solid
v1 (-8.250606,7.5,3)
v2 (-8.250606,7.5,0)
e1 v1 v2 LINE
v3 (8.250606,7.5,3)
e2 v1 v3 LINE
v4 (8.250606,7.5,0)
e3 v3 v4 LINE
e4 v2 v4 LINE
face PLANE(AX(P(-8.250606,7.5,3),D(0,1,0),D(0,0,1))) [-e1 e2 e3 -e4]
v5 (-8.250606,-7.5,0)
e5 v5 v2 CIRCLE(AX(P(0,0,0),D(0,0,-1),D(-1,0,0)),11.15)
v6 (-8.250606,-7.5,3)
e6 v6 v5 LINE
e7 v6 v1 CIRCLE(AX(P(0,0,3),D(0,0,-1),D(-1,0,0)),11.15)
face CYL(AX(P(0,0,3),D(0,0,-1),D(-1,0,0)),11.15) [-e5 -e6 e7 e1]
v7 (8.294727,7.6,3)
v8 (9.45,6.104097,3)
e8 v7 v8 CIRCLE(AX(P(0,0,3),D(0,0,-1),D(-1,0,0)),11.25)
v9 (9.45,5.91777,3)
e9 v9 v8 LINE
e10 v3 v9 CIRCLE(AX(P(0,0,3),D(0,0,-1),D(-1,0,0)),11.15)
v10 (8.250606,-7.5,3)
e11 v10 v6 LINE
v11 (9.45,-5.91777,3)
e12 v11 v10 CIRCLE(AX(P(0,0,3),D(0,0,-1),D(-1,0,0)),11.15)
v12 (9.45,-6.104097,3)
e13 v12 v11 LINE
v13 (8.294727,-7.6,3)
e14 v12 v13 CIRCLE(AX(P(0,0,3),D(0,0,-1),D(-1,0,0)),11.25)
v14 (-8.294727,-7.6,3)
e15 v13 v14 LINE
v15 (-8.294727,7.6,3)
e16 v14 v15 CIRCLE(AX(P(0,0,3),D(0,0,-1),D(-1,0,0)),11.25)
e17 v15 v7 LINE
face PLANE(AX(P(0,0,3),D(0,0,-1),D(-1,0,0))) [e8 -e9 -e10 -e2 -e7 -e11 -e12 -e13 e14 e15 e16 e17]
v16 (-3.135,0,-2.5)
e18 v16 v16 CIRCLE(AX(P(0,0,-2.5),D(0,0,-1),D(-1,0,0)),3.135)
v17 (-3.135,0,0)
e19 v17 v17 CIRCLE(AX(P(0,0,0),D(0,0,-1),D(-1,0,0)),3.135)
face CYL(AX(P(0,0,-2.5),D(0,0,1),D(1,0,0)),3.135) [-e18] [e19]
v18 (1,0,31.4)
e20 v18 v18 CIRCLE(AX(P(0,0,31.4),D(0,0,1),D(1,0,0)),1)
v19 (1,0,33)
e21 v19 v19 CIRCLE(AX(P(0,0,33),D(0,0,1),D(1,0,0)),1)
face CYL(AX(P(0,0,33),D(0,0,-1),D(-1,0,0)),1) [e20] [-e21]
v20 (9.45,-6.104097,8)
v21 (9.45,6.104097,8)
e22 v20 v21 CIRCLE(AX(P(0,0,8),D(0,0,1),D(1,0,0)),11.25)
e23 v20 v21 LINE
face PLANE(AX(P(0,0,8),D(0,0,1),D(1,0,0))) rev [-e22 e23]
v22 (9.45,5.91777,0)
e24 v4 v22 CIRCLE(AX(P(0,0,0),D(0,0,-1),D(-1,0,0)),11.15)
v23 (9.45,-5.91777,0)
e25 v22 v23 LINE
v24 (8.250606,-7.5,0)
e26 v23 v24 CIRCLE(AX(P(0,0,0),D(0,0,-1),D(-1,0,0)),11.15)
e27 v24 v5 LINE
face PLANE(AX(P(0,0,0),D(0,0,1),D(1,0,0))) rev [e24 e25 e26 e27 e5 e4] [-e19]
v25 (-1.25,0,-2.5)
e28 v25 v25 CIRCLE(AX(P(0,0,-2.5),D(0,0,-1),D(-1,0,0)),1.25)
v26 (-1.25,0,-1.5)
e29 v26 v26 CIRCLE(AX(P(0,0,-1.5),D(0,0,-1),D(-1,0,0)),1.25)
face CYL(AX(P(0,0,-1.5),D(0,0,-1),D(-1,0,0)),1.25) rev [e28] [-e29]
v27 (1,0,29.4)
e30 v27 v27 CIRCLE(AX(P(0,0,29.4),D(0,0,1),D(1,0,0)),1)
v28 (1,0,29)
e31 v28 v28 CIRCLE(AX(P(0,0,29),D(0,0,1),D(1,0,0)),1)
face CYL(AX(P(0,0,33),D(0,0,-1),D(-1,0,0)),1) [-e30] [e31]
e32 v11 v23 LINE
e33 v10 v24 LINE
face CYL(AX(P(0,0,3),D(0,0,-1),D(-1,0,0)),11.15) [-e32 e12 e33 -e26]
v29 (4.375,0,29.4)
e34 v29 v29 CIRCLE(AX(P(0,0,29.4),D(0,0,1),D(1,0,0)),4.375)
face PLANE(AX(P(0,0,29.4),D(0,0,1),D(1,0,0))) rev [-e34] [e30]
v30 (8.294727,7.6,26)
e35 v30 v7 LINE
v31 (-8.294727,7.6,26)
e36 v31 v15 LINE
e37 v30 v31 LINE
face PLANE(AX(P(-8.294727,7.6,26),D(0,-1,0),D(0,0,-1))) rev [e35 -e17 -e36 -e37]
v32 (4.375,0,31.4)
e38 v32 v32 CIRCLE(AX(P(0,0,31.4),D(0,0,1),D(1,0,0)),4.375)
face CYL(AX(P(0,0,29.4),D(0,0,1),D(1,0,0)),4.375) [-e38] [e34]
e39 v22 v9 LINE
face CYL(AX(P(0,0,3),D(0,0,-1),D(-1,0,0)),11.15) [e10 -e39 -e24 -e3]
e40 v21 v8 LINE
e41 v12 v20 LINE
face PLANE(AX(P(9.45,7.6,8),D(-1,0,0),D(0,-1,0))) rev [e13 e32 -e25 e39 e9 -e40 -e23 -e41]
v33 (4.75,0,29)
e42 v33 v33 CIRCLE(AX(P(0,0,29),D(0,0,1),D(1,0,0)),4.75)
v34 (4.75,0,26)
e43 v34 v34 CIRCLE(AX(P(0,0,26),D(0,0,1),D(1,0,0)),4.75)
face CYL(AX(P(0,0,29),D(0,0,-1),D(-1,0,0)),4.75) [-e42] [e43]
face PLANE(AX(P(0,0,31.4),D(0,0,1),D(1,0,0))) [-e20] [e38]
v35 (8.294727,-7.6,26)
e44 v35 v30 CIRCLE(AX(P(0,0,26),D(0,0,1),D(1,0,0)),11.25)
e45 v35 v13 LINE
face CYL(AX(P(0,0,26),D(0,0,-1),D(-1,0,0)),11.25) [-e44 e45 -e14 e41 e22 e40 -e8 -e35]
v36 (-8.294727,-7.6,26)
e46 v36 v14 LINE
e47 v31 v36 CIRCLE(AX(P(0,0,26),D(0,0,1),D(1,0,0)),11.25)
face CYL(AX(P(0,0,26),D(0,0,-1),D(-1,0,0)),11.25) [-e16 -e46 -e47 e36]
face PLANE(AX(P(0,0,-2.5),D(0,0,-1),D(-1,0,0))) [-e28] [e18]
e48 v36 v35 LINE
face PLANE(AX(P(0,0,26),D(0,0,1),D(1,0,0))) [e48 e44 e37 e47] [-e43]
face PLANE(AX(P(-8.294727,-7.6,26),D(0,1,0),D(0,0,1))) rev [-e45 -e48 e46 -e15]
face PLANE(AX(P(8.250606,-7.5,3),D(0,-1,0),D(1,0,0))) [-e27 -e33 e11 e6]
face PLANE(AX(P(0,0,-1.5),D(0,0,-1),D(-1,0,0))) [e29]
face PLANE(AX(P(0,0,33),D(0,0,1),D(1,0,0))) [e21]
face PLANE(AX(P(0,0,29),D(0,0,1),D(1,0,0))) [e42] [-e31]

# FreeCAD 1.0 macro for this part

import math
import FreeCAD as App
import Part
import Sketcher
from FreeCAD import Vector
Q = App.Units.Quantity

doc = App.newDocument("Part")
params = doc.addObject("Spreadsheet::Sheet", "Params")
for row, (alias, value) in enumerate([
    ("sketch1_radius", "11.25 mm"),
    ("pad1_length", "26 mm"),
    ("sketch2_diameter", "9.5 mm"),
    ("pad2_length", "3 mm"),
    ("sketch3_diameter", "2 mm"),
    ("pad3_length", "4 mm"),
    ("sketch4_diameter", "8.75 mm"),
    ("pad4_length", "2 mm"),
    ("sketch5_radius", "11.25 mm"),
    ("sketch5_radius2", "11.15 mm"),
    ("pocket1_length", "3 mm"),
    ("sketch6_diameter", "6.27 mm"),
    ("pad5_length", "2.5 mm"),
    ("sketch7_diameter", "2.5 mm"),
    ("pocket2_length", "1 mm"),
    ("sketch8_width", "1.8 mm"),
    ("sketch8_height", "15.2 mm"),
    ("pocket3_length", "8 mm"),
], start=1):
    params.set(f"A{row}", alias)
    params.set(f"B{row}", "=" + value)
    params.setAlias(f"B{row}", alias)

body = doc.addObject("PartDesign::Body", "Body")

sketch1 = doc.addObject("Sketcher::SketchObject", "Sketch")
body.addObject(sketch1)
sketch1.AttachmentSupport = (doc.XY_Plane, [""])
sketch1.MapMode = "FlatFace"
sketch1.addGeometry(Part.LineSegment(Vector(8.294727, 7.6, 0), Vector(-8.294727, 7.6, 0)), False)
sketch1.addGeometry(Part.ArcOfCircle(Part.Circle(Vector(0, 0, 0), Vector(0, 0, 1), 11.25), math.radians(137.502693), math.radians(222.497307)), False)
sketch1.addGeometry(Part.LineSegment(Vector(-8.294727, -7.6, 0), Vector(8.294727, -7.6, 0)), False)
sketch1.addGeometry(Part.ArcOfCircle(Part.Circle(Vector(0, 0, 0), Vector(0, 0, 1), 11.25), math.radians(-42.497307), math.radians(42.497307)), False)
sketch1.addConstraint(Sketcher.Constraint("Coincident", 0, 2, 1, 1))
sketch1.addConstraint(Sketcher.Constraint("Coincident", 1, 2, 2, 1))
sketch1.addConstraint(Sketcher.Constraint("Coincident", 2, 2, 3, 1))
sketch1.addConstraint(Sketcher.Constraint("Coincident", 3, 2, 0, 1))
sketch1.addConstraint(Sketcher.Constraint("Horizontal", 0))
sketch1.addConstraint(Sketcher.Constraint("Horizontal", 2))
sketch1.addConstraint(Sketcher.Constraint("Coincident", 1, 3, -1, 1))
sketch1.addConstraint(Sketcher.Constraint("Coincident", 3, 3, -1, 1))
sketch1.addConstraint(Sketcher.Constraint("Equal", 1, 3))
sketch1.addConstraint(Sketcher.Constraint("Vertical", 0, 2, 1, 2))
sketch1.addConstraint(Sketcher.Constraint("Radius", 1, Q("11.25 mm")))
sketch1.addConstraint(Sketcher.Constraint("DistanceY", -1, 1, 0, 2, Q("7.6 mm")))
sketch1.setExpression("Constraints[10]", "Params.sketch1_radius")
pad1 = doc.addObject("PartDesign::Pad", "Pad")
body.addObject(pad1)
pad1.Profile = sketch1
pad1.setExpression("Length", "Params.pad1_length")

sketch2 = doc.addObject("Sketcher::SketchObject", "Sketch001")
body.addObject(sketch2)
sketch2.AttachmentSupport = (doc.XY_Plane, [""])
sketch2.MapMode = "FlatFace"
sketch2.AttachmentOffset = App.Placement(Vector(0, 0, 26), App.Rotation())
sketch2.addGeometry(Part.Circle(Vector(0, 0, 0), Vector(0, 0, 1), 4.75), False)
sketch2.addConstraint(Sketcher.Constraint("Coincident", 0, 3, -1, 1))
sketch2.addConstraint(Sketcher.Constraint("Diameter", 0, Q("9.5 mm")))
sketch2.setExpression("Constraints[1]", "Params.sketch2_diameter")
pad2 = doc.addObject("PartDesign::Pad", "Pad001")
body.addObject(pad2)
pad2.Profile = sketch2
pad2.setExpression("Length", "Params.pad2_length")

sketch3 = doc.addObject("Sketcher::SketchObject", "Sketch002")
body.addObject(sketch3)
sketch3.AttachmentSupport = (doc.XY_Plane, [""])
sketch3.MapMode = "FlatFace"
sketch3.AttachmentOffset = App.Placement(Vector(0, 0, 29), App.Rotation())
sketch3.addGeometry(Part.Circle(Vector(0, 0, 0), Vector(0, 0, 1), 1), False)
sketch3.addConstraint(Sketcher.Constraint("Coincident", 0, 3, -1, 1))
sketch3.addConstraint(Sketcher.Constraint("Diameter", 0, Q("2 mm")))
sketch3.setExpression("Constraints[1]", "Params.sketch3_diameter")
pad3 = doc.addObject("PartDesign::Pad", "Pad002")
body.addObject(pad3)
pad3.Profile = sketch3
pad3.setExpression("Length", "Params.pad3_length")

sketch4 = doc.addObject("Sketcher::SketchObject", "Sketch003")
body.addObject(sketch4)
sketch4.AttachmentSupport = (doc.XY_Plane, [""])
sketch4.MapMode = "FlatFace"
sketch4.AttachmentOffset = App.Placement(Vector(0, 0, 31.4), App.Rotation())
sketch4.addGeometry(Part.Circle(Vector(0, 0, 0), Vector(0, 0, 1), 4.375), False)
sketch4.addConstraint(Sketcher.Constraint("Coincident", 0, 3, -1, 1))
sketch4.addConstraint(Sketcher.Constraint("Diameter", 0, Q("8.75 mm")))
sketch4.setExpression("Constraints[1]", "Params.sketch4_diameter")
pad4 = doc.addObject("PartDesign::Pad", "Pad003")
body.addObject(pad4)
pad4.Profile = sketch4
pad4.setExpression("Length", "Params.pad4_length")
pad4.Reversed = True

sketch5 = doc.addObject("Sketcher::SketchObject", "Sketch004")
body.addObject(sketch5)
sketch5.AttachmentSupport = (doc.XY_Plane, [""])
sketch5.MapMode = "FlatFace"
sketch5.addGeometry(Part.LineSegment(Vector(8.294727, -7.6, 0), Vector(-8.294727, -7.6, 0)), False)
sketch5.addGeometry(Part.ArcOfCircle(Part.Circle(Vector(0, 0, 0), Vector(0, 0, 1), 11.25), math.radians(137.502693), math.radians(222.497307)), False)
sketch5.addGeometry(Part.LineSegment(Vector(-8.294727, 7.6, 0), Vector(8.294727, 7.6, 0)), False)
sketch5.addGeometry(Part.ArcOfCircle(Part.Circle(Vector(0, 0, 0), Vector(0, 0, 1), 11.25), math.radians(-42.497307), math.radians(42.497307)), False)
sketch5.addGeometry(Part.ArcOfCircle(Part.Circle(Vector(0, 0, 0), Vector(0, 0, 1), 11.15), math.radians(137.728406), math.radians(222.271594)), False)
sketch5.addGeometry(Part.LineSegment(Vector(-8.250606, -7.5, 0), Vector(8.250606, -7.5, 0)), False)
sketch5.addGeometry(Part.ArcOfCircle(Part.Circle(Vector(0, 0, 0), Vector(0, 0, 1), 11.15), math.radians(-42.271594), math.radians(42.271594)), False)
sketch5.addGeometry(Part.LineSegment(Vector(8.250606, 7.5, 0), Vector(-8.250606, 7.5, 0)), False)
sketch5.addConstraint(Sketcher.Constraint("Coincident", 0, 2, 1, 2))
sketch5.addConstraint(Sketcher.Constraint("Coincident", 1, 1, 2, 1))
sketch5.addConstraint(Sketcher.Constraint("Coincident", 2, 2, 3, 2))
sketch5.addConstraint(Sketcher.Constraint("Coincident", 3, 1, 0, 1))
sketch5.addConstraint(Sketcher.Constraint("Coincident", 4, 2, 5, 1))
sketch5.addConstraint(Sketcher.Constraint("Coincident", 5, 2, 6, 1))
sketch5.addConstraint(Sketcher.Constraint("Coincident", 6, 2, 7, 1))
sketch5.addConstraint(Sketcher.Constraint("Coincident", 7, 2, 4, 1))
sketch5.addConstraint(Sketcher.Constraint("Horizontal", 0))
sketch5.addConstraint(Sketcher.Constraint("Horizontal", 2))
sketch5.addConstraint(Sketcher.Constraint("Horizontal", 5))
sketch5.addConstraint(Sketcher.Constraint("Horizontal", 7))
sketch5.addConstraint(Sketcher.Constraint("Coincident", 1, 3, -1, 1))
sketch5.addConstraint(Sketcher.Constraint("Coincident", 3, 3, -1, 1))
sketch5.addConstraint(Sketcher.Constraint("Coincident", 4, 3, -1, 1))
sketch5.addConstraint(Sketcher.Constraint("Coincident", 6, 3, -1, 1))
sketch5.addConstraint(Sketcher.Constraint("Equal", 1, 3))
sketch5.addConstraint(Sketcher.Constraint("Equal", 4, 6))
sketch5.addConstraint(Sketcher.Constraint("Vertical", 0, 2, 1, 1))
sketch5.addConstraint(Sketcher.Constraint("Vertical", 5, 2, 6, 2))
sketch5.addConstraint(Sketcher.Constraint("Radius", 1, Q("11.25 mm")))
sketch5.addConstraint(Sketcher.Constraint("Radius", 4, Q("11.15 mm")))
sketch5.addConstraint(Sketcher.Constraint("DistanceY", 0, 2, -1, 1, Q("7.6 mm")))
sketch5.addConstraint(Sketcher.Constraint("DistanceY", 4, 2, -1, 1, Q("7.5 mm")))
sketch5.setExpression("Constraints[20]", "Params.sketch5_radius")
sketch5.setExpression("Constraints[21]", "Params.sketch5_radius2")
pocket1 = doc.addObject("PartDesign::Pocket", "Pocket")
body.addObject(pocket1)
pocket1.Profile = sketch5
pocket1.setExpression("Length", "Params.pocket1_length")
pocket1.Reversed = True

sketch6 = doc.addObject("Sketcher::SketchObject", "Sketch005")
body.addObject(sketch6)
sketch6.AttachmentSupport = (doc.XY_Plane, [""])
sketch6.MapMode = "FlatFace"
sketch6.addGeometry(Part.Circle(Vector(0, 0, 0), Vector(0, 0, 1), 3.135), False)
sketch6.addConstraint(Sketcher.Constraint("Coincident", 0, 3, -1, 1))
sketch6.addConstraint(Sketcher.Constraint("Diameter", 0, Q("6.27 mm")))
sketch6.setExpression("Constraints[1]", "Params.sketch6_diameter")
pad5 = doc.addObject("PartDesign::Pad", "Pad004")
body.addObject(pad5)
pad5.Profile = sketch6
pad5.setExpression("Length", "Params.pad5_length")
pad5.Reversed = True

sketch7 = doc.addObject("Sketcher::SketchObject", "Sketch006")
body.addObject(sketch7)
sketch7.AttachmentSupport = (doc.XY_Plane, [""])
sketch7.MapMode = "FlatFace"
sketch7.AttachmentOffset = App.Placement(Vector(0, 0, -2.5), App.Rotation())
sketch7.addGeometry(Part.Circle(Vector(0, 0, 0), Vector(0, 0, 1), 1.25), False)
sketch7.addConstraint(Sketcher.Constraint("Coincident", 0, 3, -1, 1))
sketch7.addConstraint(Sketcher.Constraint("Diameter", 0, Q("2.5 mm")))
sketch7.setExpression("Constraints[1]", "Params.sketch7_diameter")
pocket2 = doc.addObject("PartDesign::Pocket", "Pocket001")
body.addObject(pocket2)
pocket2.Profile = sketch7
pocket2.setExpression("Length", "Params.pocket2_length")
pocket2.Reversed = True

sketch8 = doc.addObject("Sketcher::SketchObject", "Sketch007")
body.addObject(sketch8)
sketch8.AttachmentSupport = (doc.XY_Plane, [""])
sketch8.MapMode = "FlatFace"
sketch8.addGeometry(Part.LineSegment(Vector(11.25, 7.6, 0), Vector(11.25, -7.6, 0)), False)
sketch8.addGeometry(Part.LineSegment(Vector(11.25, -7.6, 0), Vector(9.45, -7.6, 0)), False)
sketch8.addGeometry(Part.LineSegment(Vector(9.45, -7.6, 0), Vector(9.45, 7.6, 0)), False)
sketch8.addGeometry(Part.LineSegment(Vector(9.45, 7.6, 0), Vector(11.25, 7.6, 0)), False)
sketch8.addConstraint(Sketcher.Constraint("Coincident", 0, 2, 1, 1))
sketch8.addConstraint(Sketcher.Constraint("Coincident", 1, 2, 2, 1))
sketch8.addConstraint(Sketcher.Constraint("Coincident", 2, 2, 3, 1))
sketch8.addConstraint(Sketcher.Constraint("Coincident", 3, 2, 0, 1))
sketch8.addConstraint(Sketcher.Constraint("Vertical", 0))
sketch8.addConstraint(Sketcher.Constraint("Horizontal", 1))
sketch8.addConstraint(Sketcher.Constraint("Vertical", 2))
sketch8.addConstraint(Sketcher.Constraint("Horizontal", 3))
sketch8.addConstraint(Sketcher.Constraint("DistanceX", 1, 2, 1, 1, Q("1.8 mm")))
sketch8.addConstraint(Sketcher.Constraint("DistanceY", 0, 2, 0, 1, Q("15.2 mm")))
sketch8.addConstraint(Sketcher.Constraint("DistanceY", 0, 2, -1, 1, Q("7.6 mm")))
sketch8.addConstraint(Sketcher.Constraint("DistanceX", -1, 1, 0, 2, Q("11.25 mm")))
sketch8.setExpression("Constraints[8]", "Params.sketch8_width")
sketch8.setExpression("Constraints[9]", "Params.sketch8_height")
pocket3 = doc.addObject("PartDesign::Pocket", "Pocket002")
body.addObject(pocket3)
pocket3.Profile = sketch8
pocket3.setExpression("Length", "Params.pocket3_length")
pocket3.Reversed = True

doc.recompute()
